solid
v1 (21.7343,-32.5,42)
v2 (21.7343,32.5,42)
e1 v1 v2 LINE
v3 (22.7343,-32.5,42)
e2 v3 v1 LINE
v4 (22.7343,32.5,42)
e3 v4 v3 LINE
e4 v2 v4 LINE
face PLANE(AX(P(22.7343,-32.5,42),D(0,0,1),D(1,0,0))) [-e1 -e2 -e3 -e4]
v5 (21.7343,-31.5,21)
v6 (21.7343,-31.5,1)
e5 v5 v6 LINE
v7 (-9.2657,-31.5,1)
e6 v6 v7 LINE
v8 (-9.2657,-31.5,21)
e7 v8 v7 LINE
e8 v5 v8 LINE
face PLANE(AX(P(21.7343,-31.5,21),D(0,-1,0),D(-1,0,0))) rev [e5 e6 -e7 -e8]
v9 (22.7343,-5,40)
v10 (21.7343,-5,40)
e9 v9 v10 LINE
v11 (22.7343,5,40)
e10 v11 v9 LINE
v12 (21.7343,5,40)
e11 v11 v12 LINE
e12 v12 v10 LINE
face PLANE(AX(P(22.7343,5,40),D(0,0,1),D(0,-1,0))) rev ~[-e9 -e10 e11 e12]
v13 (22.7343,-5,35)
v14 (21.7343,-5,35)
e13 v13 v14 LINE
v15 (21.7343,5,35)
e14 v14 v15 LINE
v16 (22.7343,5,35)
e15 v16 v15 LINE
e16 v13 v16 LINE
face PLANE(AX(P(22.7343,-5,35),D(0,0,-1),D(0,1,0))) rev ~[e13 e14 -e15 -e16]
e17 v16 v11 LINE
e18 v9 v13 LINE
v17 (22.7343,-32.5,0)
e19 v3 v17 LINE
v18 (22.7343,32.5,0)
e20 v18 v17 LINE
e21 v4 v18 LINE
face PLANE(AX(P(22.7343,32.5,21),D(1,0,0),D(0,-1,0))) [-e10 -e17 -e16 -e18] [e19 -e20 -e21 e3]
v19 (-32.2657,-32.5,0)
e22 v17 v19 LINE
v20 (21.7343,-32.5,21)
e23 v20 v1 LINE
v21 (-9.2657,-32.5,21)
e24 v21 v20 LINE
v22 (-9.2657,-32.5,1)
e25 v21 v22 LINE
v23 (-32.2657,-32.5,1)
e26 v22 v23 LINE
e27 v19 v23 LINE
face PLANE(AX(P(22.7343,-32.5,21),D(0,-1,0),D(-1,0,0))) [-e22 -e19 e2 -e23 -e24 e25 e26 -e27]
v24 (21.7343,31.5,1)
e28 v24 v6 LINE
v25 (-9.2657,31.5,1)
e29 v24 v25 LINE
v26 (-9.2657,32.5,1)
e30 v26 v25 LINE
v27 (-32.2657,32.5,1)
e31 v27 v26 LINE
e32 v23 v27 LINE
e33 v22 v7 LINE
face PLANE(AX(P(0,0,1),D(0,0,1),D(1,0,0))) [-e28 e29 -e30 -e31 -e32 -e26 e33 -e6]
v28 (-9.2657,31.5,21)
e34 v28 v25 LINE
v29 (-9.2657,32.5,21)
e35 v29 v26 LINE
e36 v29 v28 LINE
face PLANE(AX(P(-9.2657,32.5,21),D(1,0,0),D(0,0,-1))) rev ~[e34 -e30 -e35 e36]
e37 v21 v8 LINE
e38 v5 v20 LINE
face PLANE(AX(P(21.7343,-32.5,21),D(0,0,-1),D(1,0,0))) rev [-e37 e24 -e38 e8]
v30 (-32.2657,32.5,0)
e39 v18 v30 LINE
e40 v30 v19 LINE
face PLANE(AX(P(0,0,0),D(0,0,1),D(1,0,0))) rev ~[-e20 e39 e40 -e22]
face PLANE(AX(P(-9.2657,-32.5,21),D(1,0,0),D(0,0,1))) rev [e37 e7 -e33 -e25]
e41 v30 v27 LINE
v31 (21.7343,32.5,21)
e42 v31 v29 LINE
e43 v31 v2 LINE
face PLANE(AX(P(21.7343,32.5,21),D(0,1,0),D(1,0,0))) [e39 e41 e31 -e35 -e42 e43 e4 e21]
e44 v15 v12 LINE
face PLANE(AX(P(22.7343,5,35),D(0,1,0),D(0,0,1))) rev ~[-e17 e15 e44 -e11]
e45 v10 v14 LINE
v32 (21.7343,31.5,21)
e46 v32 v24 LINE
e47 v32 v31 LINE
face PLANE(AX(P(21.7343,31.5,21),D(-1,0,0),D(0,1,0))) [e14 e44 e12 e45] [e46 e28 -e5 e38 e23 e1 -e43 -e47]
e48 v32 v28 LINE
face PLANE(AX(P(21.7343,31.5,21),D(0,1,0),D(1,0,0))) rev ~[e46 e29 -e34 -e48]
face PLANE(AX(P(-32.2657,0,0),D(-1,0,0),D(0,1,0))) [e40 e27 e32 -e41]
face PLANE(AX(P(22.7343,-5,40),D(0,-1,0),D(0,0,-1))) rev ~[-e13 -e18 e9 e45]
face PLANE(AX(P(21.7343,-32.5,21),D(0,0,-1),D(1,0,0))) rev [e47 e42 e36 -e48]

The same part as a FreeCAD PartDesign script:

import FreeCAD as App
import Part
import Sketcher


def add_polygon(sketch, points):
    """Adds a closed chain of lines whose ends are joined by coincident constraints."""
    first, n = sketch.GeometryCount, len(points)
    for a, b in zip(points, points[1:] + points[:1]):
        sketch.addGeometry(Part.LineSegment(App.Vector(*a, 0), App.Vector(*b, 0)), False)
    for i in range(n):
        sketch.addConstraint(Sketcher.Constraint("Coincident", first + i, 2, first + (i + 1) % n, 1))

doc = App.newDocument("Part")
body = doc.addObject("PartDesign::Body", "Body")

# Sketch on XY plane
sketch1 = body.newObject("Sketcher::SketchObject", "Sketch")
sketch1.AttachmentSupport = (doc.getObject("XY_Plane"), [""])
sketch1.MapMode = "FlatFace"
add_polygon(sketch1, [(21.7343, 32.5), (-32.2657, 32.5), (-32.2657, -32.5), (21.7343, -32.5)])  # lines 0-3
sketch1.addConstraint([
    Sketcher.Constraint("Horizontal", 0),
    Sketcher.Constraint("Vertical", 1),
    Sketcher.Constraint("Horizontal", 2),
    Sketcher.Constraint("Vertical", 3),
    Sketcher.Constraint("DistanceX", 0, 2, 0, 1, 54.0),
    Sketcher.Constraint("DistanceY", 1, 2, 1, 1, 65.0),
    Sketcher.Constraint("DistanceY", -1, 1, 0, 2, 32.5),
    Sketcher.Constraint("DistanceX", 0, 2, -1, 1, 32.2657),
])
pad1 = body.newObject("PartDesign::Pad", "Pad")
pad1.Profile = sketch1
pad1.Length = 1

# Sketch on YZ plane
sketch2 = body.newObject("Sketcher::SketchObject", "Sketch001")
sketch2.AttachmentSupport = (doc.getObject("YZ_Plane"), [""])
sketch2.MapMode = "FlatFace"
sketch2.AttachmentOffset = App.Placement(App.Vector(0, 0, 21.7343), App.Rotation())
add_polygon(sketch2, [(-32.5, 0), (32.5, 0), (32.5, 21), (-32.5, 21)])  # lines 0-3
sketch2.addConstraint([
    Sketcher.Constraint("Horizontal", 0),
    Sketcher.Constraint("Vertical", 1),
    Sketcher.Constraint("Horizontal", 2),
    Sketcher.Constraint("Vertical", 3),
    Sketcher.Constraint("Symmetric", 0, 2, 3, 2, -1, 1),
    Sketcher.Constraint("DistanceX", 0, 1, 0, 2, 65.0),
    Sketcher.Constraint("DistanceY", 1, 1, 1, 2, 21.0),
])
pad2 = body.newObject("PartDesign::Pad", "Pad001")
pad2.Profile = sketch2
pad2.Length = 1

# Sketch on XZ plane
sketch3 = body.newObject("Sketcher::SketchObject", "Sketch002")
sketch3.AttachmentSupport = (doc.getObject("XZ_Plane"), [""])
sketch3.MapMode = "FlatFace"
sketch3.AttachmentOffset = App.Placement(App.Vector(0, 0, -32.5), App.Rotation())
add_polygon(sketch3, [(21.7343, 21), (21.7343, 1), (-9.2657, 1), (-9.2657, 21)])  # lines 0-3
sketch3.addConstraint([
    Sketcher.Constraint("Vertical", 0),
    Sketcher.Constraint("Horizontal", 1),
    Sketcher.Constraint("Vertical", 2),
    Sketcher.Constraint("Horizontal", 3),
    Sketcher.Constraint("DistanceX", 1, 2, 1, 1, 31.0),
    Sketcher.Constraint("DistanceY", 0, 2, 0, 1, 20.0),
    Sketcher.Constraint("DistanceY", -1, 1, 0, 2, 1.0),
    Sketcher.Constraint("DistanceX", -1, 1, 0, 2, 21.7343),
])
pad3 = body.newObject("PartDesign::Pad", "Pad002")
pad3.Profile = sketch3
pad3.Length = 1
doc.recompute()

mirrored = body.newObject("PartDesign::Mirrored", "Mirrored")
mirrored.Originals = [pad3]
mirrored.MirrorPlane = (doc.getObject("XZ_Plane"), [""])
body.Tip = mirrored

# Sketch on XY plane
sketch4 = body.newObject("Sketcher::SketchObject", "Sketch003")
sketch4.AttachmentSupport = (doc.getObject("XY_Plane"), [""])
sketch4.MapMode = "FlatFace"
sketch4.AttachmentOffset = App.Placement(App.Vector(0, 0, 21), App.Rotation())
add_polygon(sketch4, [(21.7343, 32.5), (21.7343, -32.5), (22.7343, -32.5), (22.7343, 32.5)])  # lines 0-3
sketch4.addConstraint([
    Sketcher.Constraint("Vertical", 0),
    Sketcher.Constraint("Horizontal", 1),
    Sketcher.Constraint("Vertical", 2),
    Sketcher.Constraint("Horizontal", 3),
    Sketcher.Constraint("DistanceX", 1, 1, 1, 2, 1.0),
    Sketcher.Constraint("DistanceY", 0, 2, 0, 1, 65.0),
    Sketcher.Constraint("DistanceY", 0, 2, -1, 1, 32.5),
    Sketcher.Constraint("DistanceX", -1, 1, 0, 2, 21.7343),
])
pad4 = body.newObject("PartDesign::Pad", "Pad003")
pad4.Profile = sketch4
pad4.Length = 21

# Sketch on YZ plane
sketch5 = body.newObject("Sketcher::SketchObject", "Sketch004")
sketch5.AttachmentSupport = (doc.getObject("YZ_Plane"), [""])
sketch5.MapMode = "FlatFace"
sketch5.AttachmentOffset = App.Placement(App.Vector(0, 0, 22.7343), App.Rotation())
add_polygon(sketch5, [(-5, 35), (5, 35), (5, 40), (-5, 40)])  # lines 0-3
sketch5.addConstraint([
    Sketcher.Constraint("Horizontal", 0),
    Sketcher.Constraint("Vertical", 1),
    Sketcher.Constraint("Horizontal", 2),
    Sketcher.Constraint("Vertical", 3),
    Sketcher.Constraint("DistanceX", 0, 1, 0, 2, 10.0),
    Sketcher.Constraint("DistanceY", 1, 1, 1, 2, 5.0),
    Sketcher.Constraint("DistanceX", -1, 1, 0, 2, 5.0),
    Sketcher.Constraint("DistanceY", -1, 1, 0, 2, 35.0),
])
pocket1 = body.newObject("PartDesign::Pocket", "Pocket")
pocket1.Profile = sketch5
pocket1.Type = "UpToFirst"

doc.recompute()
